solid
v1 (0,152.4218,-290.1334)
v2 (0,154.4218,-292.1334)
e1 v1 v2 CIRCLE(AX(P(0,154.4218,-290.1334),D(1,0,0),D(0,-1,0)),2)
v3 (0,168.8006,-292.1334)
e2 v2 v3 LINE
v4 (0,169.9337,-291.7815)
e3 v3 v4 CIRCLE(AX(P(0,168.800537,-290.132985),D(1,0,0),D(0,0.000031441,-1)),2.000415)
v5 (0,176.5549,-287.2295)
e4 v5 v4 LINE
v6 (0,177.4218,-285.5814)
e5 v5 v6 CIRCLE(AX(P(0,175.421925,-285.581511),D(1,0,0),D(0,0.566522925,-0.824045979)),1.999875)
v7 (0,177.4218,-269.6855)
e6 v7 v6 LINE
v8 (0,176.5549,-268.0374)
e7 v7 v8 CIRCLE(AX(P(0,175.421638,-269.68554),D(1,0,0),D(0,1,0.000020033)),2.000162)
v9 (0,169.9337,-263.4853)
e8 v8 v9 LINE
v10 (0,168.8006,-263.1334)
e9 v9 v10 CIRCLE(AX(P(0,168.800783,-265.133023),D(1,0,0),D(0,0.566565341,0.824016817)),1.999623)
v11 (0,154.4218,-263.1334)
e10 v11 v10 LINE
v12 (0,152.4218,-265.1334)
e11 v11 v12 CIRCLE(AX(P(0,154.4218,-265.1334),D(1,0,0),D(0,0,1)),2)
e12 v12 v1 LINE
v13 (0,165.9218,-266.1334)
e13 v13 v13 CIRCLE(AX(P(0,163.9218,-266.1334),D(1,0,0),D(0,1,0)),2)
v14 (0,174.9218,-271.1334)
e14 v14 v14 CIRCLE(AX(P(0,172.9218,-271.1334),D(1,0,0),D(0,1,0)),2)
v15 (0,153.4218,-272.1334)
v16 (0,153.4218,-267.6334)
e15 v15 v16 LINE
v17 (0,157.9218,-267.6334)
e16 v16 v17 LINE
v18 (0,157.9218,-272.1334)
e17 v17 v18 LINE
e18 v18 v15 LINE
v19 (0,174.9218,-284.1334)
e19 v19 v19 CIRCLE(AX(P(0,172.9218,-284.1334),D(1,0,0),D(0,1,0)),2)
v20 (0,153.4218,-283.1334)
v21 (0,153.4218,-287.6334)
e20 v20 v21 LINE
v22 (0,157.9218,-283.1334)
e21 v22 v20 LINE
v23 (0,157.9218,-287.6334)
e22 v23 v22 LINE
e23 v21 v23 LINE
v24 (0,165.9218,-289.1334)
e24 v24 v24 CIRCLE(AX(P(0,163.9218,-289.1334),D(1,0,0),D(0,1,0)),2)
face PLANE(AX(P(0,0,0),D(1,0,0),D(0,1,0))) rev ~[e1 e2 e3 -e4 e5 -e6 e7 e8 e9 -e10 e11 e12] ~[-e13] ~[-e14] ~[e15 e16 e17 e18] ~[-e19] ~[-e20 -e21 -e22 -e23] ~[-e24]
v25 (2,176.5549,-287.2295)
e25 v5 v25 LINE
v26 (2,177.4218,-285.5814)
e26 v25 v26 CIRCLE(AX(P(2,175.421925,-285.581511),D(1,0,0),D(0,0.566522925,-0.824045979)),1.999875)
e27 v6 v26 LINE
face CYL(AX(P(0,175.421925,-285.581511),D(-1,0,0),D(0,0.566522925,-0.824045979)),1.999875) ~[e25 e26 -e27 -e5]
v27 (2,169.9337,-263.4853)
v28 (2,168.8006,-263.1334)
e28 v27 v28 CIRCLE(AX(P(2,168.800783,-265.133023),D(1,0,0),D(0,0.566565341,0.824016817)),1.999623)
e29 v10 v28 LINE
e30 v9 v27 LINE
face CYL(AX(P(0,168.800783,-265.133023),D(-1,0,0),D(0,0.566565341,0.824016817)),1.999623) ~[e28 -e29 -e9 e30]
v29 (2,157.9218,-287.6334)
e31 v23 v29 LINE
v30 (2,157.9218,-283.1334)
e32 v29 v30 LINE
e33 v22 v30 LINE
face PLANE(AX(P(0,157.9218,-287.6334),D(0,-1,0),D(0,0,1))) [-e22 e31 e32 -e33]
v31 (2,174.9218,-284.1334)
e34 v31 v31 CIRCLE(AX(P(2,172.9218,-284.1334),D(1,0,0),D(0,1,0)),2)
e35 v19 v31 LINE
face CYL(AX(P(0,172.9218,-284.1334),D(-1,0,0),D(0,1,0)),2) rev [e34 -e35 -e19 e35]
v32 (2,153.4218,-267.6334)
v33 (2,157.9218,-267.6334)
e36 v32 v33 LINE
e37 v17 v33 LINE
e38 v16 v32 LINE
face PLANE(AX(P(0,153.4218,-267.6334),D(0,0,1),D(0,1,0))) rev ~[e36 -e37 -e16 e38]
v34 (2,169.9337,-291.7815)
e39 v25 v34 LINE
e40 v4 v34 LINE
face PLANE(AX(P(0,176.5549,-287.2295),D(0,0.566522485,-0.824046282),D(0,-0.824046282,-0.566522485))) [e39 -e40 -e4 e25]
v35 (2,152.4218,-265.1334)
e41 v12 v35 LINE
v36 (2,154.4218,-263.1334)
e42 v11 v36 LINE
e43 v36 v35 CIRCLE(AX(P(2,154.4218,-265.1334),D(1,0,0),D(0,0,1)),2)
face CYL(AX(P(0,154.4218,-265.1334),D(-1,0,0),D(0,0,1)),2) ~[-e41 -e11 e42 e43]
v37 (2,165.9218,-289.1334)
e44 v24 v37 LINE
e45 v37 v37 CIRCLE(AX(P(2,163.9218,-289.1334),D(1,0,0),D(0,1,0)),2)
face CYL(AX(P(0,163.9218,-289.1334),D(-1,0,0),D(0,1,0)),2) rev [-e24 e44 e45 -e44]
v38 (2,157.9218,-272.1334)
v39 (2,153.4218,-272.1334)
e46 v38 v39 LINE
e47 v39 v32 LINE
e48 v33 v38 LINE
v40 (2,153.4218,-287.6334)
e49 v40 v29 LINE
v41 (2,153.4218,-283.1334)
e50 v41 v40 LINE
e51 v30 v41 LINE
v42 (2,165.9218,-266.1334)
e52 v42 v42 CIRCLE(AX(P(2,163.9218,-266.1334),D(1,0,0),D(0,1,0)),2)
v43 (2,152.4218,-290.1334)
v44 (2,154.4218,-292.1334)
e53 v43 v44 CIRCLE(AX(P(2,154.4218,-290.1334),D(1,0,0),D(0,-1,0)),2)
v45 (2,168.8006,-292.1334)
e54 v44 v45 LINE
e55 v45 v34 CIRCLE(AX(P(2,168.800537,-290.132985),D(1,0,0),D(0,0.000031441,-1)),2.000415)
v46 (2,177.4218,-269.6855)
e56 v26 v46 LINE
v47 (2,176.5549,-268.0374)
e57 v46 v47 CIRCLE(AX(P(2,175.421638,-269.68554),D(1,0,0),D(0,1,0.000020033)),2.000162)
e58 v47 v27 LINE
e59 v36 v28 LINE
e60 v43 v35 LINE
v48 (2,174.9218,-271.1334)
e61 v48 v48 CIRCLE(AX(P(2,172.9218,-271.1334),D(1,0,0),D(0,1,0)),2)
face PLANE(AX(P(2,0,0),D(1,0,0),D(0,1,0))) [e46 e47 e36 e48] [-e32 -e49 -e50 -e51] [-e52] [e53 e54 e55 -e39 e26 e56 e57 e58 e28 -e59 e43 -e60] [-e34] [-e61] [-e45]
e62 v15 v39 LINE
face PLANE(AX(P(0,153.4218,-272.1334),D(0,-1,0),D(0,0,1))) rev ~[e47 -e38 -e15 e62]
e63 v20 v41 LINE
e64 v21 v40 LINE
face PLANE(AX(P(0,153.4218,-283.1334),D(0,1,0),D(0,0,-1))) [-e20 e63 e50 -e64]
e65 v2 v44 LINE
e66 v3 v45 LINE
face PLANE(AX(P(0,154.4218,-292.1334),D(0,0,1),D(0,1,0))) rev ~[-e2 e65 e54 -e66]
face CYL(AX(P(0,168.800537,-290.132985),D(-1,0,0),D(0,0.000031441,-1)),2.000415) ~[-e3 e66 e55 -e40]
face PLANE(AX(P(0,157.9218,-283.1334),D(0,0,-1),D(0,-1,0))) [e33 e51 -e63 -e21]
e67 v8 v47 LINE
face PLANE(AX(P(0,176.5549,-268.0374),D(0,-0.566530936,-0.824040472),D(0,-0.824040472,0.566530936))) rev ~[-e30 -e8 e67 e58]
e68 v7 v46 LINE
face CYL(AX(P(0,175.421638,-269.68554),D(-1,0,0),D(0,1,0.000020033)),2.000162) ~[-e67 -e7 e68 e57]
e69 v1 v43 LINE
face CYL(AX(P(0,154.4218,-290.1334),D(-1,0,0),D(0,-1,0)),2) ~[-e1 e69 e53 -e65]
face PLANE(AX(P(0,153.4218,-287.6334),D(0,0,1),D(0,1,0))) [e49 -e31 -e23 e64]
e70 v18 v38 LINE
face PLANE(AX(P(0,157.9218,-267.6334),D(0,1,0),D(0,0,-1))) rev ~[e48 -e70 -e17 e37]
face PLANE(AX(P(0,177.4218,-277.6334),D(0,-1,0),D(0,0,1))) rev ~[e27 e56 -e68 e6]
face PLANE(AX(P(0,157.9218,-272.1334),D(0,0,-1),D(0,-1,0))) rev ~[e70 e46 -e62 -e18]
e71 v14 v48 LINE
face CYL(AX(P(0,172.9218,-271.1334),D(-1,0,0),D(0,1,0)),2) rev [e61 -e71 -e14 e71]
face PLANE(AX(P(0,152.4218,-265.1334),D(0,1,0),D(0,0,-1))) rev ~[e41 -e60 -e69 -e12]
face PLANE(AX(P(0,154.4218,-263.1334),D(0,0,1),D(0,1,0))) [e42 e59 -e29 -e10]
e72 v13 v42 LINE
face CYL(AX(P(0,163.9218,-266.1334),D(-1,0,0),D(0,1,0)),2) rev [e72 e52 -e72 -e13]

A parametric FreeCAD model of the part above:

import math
import FreeCAD as App
import Part
import Sketcher

V = App.Vector


def add_polygon(sketch, points):
    """Adds a closed chain of lines whose ends are joined by coincident constraints."""
    first, n = sketch.GeometryCount, len(points)
    for a, b in zip(points, points[1:] + points[:1]):
        sketch.addGeometry(Part.LineSegment(App.Vector(*a, 0), App.Vector(*b, 0)), False)
    for i in range(n):
        sketch.addConstraint(Sketcher.Constraint("Coincident", first + i, 2, first + (i + 1) % n, 1))

doc = App.newDocument("Part")
body = doc.addObject("PartDesign::Body", "Body")

# Sketch on YZ plane
sketch1 = doc.addObject("Sketcher::SketchObject", "Sketch")
body.addObject(sketch1)
sketch1.AttachmentSupport = (doc.YZ_Plane, [""])
sketch1.MapMode = "FlatFace"
sketch1.addGeometry(Part.ArcOfCircle(Part.Circle(V(154.4, -265.1, 0), V(0, 0, 1), 2), math.radians(90), math.radians(180)), False)  # 0
sketch1.addGeometry(Part.LineSegment(V(152.4, -265.1, 0), V(152.4, -290.1, 0)), False)  # 1
sketch1.addGeometry(Part.ArcOfCircle(Part.Circle(V(154.4, -290.1, 0), V(0, 0, 1), 2), math.radians(180), math.radians(270)), False)  # 2
sketch1.addGeometry(Part.LineSegment(V(154.4, -292.1, 0), V(168.8, -292.1, 0)), False)  # 3
sketch1.addGeometry(Part.ArcOfCircle(Part.Circle(V(168.8, -290.1, 0), V(0, 0, 1), 2), math.radians(-90), math.radians(-55)), False)  # 4
sketch1.addGeometry(Part.LineSegment(V(169.9, -291.8, 0), V(176.6, -287.2, 0)), False)  # 5
sketch1.addGeometry(Part.ArcOfCircle(Part.Circle(V(175.4, -285.6, 0), V(0, 0, 1), 2), math.radians(-55), math.radians(0)), False)  # 6
sketch1.addGeometry(Part.LineSegment(V(177.4, -285.6, 0), V(177.4, -269.7, 0)), False)  # 7
sketch1.addGeometry(Part.ArcOfCircle(Part.Circle(V(175.4, -269.7, 0), V(0, 0, 1), 2), math.radians(0), math.radians(55)), False)  # 8
sketch1.addGeometry(Part.LineSegment(V(176.6, -268, 0), V(169.9, -263.5, 0)), False)  # 9
sketch1.addGeometry(Part.ArcOfCircle(Part.Circle(V(168.8, -265.1, 0), V(0, 0, 1), 2), math.radians(55), math.radians(90)), False)  # 10
sketch1.addGeometry(Part.LineSegment(V(168.8, -263.1, 0), V(154.4, -263.1, 0)), False)  # 11
add_polygon(sketch1, [(153.4, -272.1), (153.4, -267.6), (157.9, -267.6), (157.9, -272.1)])  # lines 12-15
sketch1.addGeometry(Part.Circle(V(163.9, -266.1, 0), V(0, 0, 1), 2), False)  # 16
sketch1.addGeometry(Part.Circle(V(172.9, -271.1, 0), V(0, 0, 1), 2), False)  # 17
sketch1.addGeometry(Part.Circle(V(172.9, -284.1, 0), V(0, 0, 1), 2), False)  # 18
add_polygon(sketch1, [(157.9, -283.1), (157.9, -287.6), (153.4, -287.6), (153.4, -283.1)])  # lines 19-22
sketch1.addGeometry(Part.Circle(V(163.9, -289.1, 0), V(0, 0, 1), 2), False)  # 23
sketch1.addConstraint(Sketcher.Constraint("Tangent", 0, 2, 1, 1))
sketch1.addConstraint(Sketcher.Constraint("Tangent", 1, 2, 2, 1))
sketch1.addConstraint(Sketcher.Constraint("Tangent", 2, 2, 3, 1))
sketch1.addConstraint(Sketcher.Constraint("Tangent", 3, 2, 4, 1))
sketch1.addConstraint(Sketcher.Constraint("Tangent", 4, 2, 5, 1))
sketch1.addConstraint(Sketcher.Constraint("Tangent", 5, 2, 6, 1))
sketch1.addConstraint(Sketcher.Constraint("Tangent", 6, 2, 7, 1))
sketch1.addConstraint(Sketcher.Constraint("Tangent", 7, 2, 8, 1))
sketch1.addConstraint(Sketcher.Constraint("Tangent", 8, 2, 9, 1))
sketch1.addConstraint(Sketcher.Constraint("Tangent", 9, 2, 10, 1))
sketch1.addConstraint(Sketcher.Constraint("Tangent", 10, 2, 11, 1))
sketch1.addConstraint(Sketcher.Constraint("Tangent", 11, 2, 0, 1))
sketch1.addConstraint(Sketcher.Constraint("Vertical", 1))
sketch1.addConstraint(Sketcher.Constraint("Horizontal", 3))
sketch1.addConstraint(Sketcher.Constraint("Vertical", 7))
sketch1.addConstraint(Sketcher.Constraint("Horizontal", 11))
sketch1.addConstraint(Sketcher.Constraint("Vertical", 12))
sketch1.addConstraint(Sketcher.Constraint("Horizontal", 13))
sketch1.addConstraint(Sketcher.Constraint("Vertical", 14))
sketch1.addConstraint(Sketcher.Constraint("Horizontal", 15))
sketch1.addConstraint(Sketcher.Constraint("Vertical", 19))
sketch1.addConstraint(Sketcher.Constraint("Horizontal", 20))
sketch1.addConstraint(Sketcher.Constraint("Vertical", 21))
sketch1.addConstraint(Sketcher.Constraint("Horizontal", 22))
sketch1.addConstraint(Sketcher.Constraint("Equal", 0, 2))
sketch1.addConstraint(Sketcher.Constraint("Equal", 2, 4))
sketch1.addConstraint(Sketcher.Constraint("Equal", 4, 6))
sketch1.addConstraint(Sketcher.Constraint("Equal", 6, 8))
sketch1.addConstraint(Sketcher.Constraint("Equal", 8, 10))
sketch1.addConstraint(Sketcher.Constraint("Equal", 10, 16))
sketch1.addConstraint(Sketcher.Constraint("Equal", 16, 17))
sketch1.addConstraint(Sketcher.Constraint("Equal", 17, 18))
sketch1.addConstraint(Sketcher.Constraint("Equal", 18, 23))
sketch1.addConstraint(Sketcher.Constraint("Vertical", 4, 3, 10, 3))
sketch1.addConstraint(Sketcher.Constraint("Vertical", 17, 3, 18, 3))
sketch1.addConstraint(Sketcher.Constraint("Vertical", 16, 3, 23, 3))
sketch1.addConstraint(Sketcher.Constraint("Vertical", 5, 2, 8, 2))
sketch1.addConstraint(Sketcher.Constraint("Vertical", 14, 2, 19, 2))
sketch1.addConstraint(Sketcher.Constraint("Vertical", 15, 2, 20, 2))
sketch1.addConstraint(Sketcher.Constraint("Equal", 22, 12))
sketch1.addConstraint(Sketcher.Constraint("Equal", 14, 19))
sketch1.addConstraint(Sketcher.Constraint("Diameter", 16, 4.0))
sketch1.addConstraint(Sketcher.Constraint("DistanceX", 13, 1, 13, 2, 4.5))
sketch1.addConstraint(Sketcher.Constraint("DistanceY", 16, 3, 10, 3, 1.0))
sketch1.addConstraint(Sketcher.Constraint("DistanceY", 17, 3, 10, 3, 6.0))
sketch1.addConstraint(Sketcher.Constraint("DistanceX", 16, 3, 17, 3, 9.0))
sketch1.addConstraint(Sketcher.Constraint("DistanceY", 4, 3, 18, 3, 6.0))
sketch1.addConstraint(Sketcher.Constraint("DistanceY", 4, 3, 23, 3, 1.0))
sketch1.addConstraint(Sketcher.Constraint("DistanceX", 12, 2, 0, 3, 1.0))
sketch1.addConstraint(Sketcher.Constraint("DistanceX", 13, 2, 16, 3, 6.0))
sketch1.addConstraint(Sketcher.Constraint("DistanceY", 14, 2, 16, 3, 6.0))
sketch1.addConstraint(Sketcher.Constraint("DistanceY", 2, 2, 21, 2, 9.0))
sketch1.addConstraint(Sketcher.Constraint("DistanceX", 18, 3, 6, 2, 4.5))
sketch1.addConstraint(Sketcher.Constraint("DistanceY", 1, 2, 1, 1, 25.0))
sketch1.addConstraint(Sketcher.Constraint("DistanceY", 4, 2, 6, 3, 6.2))
sketch1.addConstraint(Sketcher.Constraint("DistanceY", 7, 1, 7, 2, 15.896))
sketch1.addConstraint(Sketcher.Constraint("DistanceX", -1, 1, 5, 2, 176.555))
sketch1.addConstraint(Sketcher.Constraint("DistanceY", 0, 3, -1, 1, 265.1334))
pad1 = doc.addObject("PartDesign::Pad", "Pad")
body.addObject(pad1)
pad1.Profile = sketch1
pad1.Length = 2

doc.recompute()
